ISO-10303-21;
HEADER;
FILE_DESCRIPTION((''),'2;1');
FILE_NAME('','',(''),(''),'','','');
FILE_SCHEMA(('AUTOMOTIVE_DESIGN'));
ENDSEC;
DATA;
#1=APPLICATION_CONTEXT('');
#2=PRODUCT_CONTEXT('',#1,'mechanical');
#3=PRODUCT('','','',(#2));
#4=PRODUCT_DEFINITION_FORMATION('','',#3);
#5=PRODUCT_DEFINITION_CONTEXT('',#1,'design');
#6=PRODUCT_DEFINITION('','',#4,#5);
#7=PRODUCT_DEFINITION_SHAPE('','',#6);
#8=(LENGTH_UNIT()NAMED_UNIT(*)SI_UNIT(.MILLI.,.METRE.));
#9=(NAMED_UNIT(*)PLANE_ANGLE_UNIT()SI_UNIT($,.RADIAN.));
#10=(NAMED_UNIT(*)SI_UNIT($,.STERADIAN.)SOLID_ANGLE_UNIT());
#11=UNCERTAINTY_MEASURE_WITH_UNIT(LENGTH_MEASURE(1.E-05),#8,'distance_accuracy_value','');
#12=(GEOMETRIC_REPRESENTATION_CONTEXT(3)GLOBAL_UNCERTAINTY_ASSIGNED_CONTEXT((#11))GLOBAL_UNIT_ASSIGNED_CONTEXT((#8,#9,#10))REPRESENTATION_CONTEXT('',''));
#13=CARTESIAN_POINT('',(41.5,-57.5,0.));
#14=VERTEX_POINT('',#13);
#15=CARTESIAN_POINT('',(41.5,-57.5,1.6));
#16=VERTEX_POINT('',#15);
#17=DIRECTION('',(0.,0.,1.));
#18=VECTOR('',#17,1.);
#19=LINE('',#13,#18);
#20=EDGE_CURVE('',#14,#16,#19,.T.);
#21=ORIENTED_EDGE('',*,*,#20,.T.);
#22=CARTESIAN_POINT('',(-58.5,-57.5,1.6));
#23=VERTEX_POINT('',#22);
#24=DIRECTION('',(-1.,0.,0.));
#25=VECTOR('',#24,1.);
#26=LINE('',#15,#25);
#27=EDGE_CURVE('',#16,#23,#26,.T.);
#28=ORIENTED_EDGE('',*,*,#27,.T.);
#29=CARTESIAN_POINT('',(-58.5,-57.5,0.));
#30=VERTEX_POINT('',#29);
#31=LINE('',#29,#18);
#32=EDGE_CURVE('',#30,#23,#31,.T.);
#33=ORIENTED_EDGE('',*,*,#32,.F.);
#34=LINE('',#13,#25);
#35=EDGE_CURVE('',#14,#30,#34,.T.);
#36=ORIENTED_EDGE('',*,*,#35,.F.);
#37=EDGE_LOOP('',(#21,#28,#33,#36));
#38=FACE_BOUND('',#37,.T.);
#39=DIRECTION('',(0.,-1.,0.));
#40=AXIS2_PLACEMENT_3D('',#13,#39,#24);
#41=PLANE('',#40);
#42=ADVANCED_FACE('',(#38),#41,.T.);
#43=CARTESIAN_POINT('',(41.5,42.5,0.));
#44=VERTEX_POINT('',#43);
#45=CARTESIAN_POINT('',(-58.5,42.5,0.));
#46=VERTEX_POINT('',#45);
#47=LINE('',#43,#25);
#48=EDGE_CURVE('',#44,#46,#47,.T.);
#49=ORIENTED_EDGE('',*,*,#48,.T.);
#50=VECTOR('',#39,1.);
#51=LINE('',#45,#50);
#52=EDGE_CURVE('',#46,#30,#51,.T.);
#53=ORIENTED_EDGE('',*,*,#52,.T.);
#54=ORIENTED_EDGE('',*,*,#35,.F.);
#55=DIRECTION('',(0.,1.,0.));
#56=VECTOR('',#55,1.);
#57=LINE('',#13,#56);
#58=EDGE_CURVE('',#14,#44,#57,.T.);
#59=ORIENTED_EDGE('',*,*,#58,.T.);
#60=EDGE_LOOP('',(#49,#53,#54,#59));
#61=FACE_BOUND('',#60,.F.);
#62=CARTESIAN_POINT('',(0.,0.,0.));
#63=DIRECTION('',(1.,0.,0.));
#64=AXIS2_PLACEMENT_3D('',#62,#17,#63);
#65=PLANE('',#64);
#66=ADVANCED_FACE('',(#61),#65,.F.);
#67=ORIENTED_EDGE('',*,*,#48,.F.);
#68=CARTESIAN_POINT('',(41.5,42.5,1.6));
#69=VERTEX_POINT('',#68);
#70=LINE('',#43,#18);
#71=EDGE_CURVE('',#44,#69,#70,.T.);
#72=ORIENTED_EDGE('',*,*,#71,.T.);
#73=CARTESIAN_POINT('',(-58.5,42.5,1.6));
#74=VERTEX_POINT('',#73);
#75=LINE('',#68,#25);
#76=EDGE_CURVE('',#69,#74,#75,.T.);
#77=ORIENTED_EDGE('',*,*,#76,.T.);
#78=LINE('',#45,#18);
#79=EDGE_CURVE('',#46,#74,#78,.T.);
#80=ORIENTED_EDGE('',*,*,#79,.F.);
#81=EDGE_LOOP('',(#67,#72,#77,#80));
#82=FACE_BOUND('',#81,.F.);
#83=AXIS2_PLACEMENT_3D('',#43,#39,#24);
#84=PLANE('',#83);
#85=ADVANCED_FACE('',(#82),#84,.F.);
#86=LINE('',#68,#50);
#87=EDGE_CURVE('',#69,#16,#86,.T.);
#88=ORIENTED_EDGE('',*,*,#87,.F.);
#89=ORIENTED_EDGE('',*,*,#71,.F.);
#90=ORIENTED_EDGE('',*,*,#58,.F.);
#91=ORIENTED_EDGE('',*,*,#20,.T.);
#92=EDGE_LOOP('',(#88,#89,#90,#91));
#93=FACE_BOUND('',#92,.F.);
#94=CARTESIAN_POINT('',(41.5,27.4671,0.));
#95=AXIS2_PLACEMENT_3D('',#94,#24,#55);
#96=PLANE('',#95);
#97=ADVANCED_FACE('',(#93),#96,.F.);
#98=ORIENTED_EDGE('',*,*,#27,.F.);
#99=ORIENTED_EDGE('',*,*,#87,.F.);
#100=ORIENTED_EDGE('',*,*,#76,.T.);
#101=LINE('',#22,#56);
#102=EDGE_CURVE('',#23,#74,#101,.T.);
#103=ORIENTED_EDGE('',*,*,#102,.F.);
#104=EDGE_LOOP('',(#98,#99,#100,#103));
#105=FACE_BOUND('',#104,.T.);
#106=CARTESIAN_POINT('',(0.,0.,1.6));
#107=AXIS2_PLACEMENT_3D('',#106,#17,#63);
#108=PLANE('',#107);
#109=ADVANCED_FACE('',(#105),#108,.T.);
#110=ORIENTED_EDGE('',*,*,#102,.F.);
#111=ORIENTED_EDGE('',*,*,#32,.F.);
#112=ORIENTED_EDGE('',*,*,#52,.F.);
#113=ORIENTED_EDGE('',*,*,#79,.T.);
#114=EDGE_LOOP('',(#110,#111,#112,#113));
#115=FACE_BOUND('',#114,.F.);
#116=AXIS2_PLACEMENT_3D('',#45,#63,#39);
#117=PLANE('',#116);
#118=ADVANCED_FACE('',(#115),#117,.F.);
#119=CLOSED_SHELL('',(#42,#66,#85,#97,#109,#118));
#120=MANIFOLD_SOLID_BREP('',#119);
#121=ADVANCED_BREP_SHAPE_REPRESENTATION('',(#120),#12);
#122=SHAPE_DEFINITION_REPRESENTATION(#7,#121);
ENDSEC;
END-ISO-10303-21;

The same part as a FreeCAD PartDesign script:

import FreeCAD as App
import Part
import Sketcher
Q = App.Units.Quantity

doc = App.newDocument("Part")
params = doc.addObject("Spreadsheet::Sheet", "Params")
for row, (alias, value) in enumerate([
    ("sketch1_width", "3.937 in"),
    ("pad1_length", "0.0629921 in"),
], start=1):
    params.set(f"A{row}", alias)
    params.set(f"B{row}", "=" + value)
    params.setAlias(f"B{row}", alias)

body = doc.addObject("PartDesign::Body", "Body")

# Sketch on XY plane
sketch1 = body.newObject("Sketcher::SketchObject", "Sketch")
sketch1.AttachmentSupport = (doc.getObject("XY_Plane"), [""])
sketch1.MapMode = "FlatFace"
sketch1.addGeometry([
    Part.LineSegment(App.Vector(42, 42, 0), App.Vector(-58, 42, 0)),
    Part.LineSegment(App.Vector(-58, 42, 0), App.Vector(-58, -58, 0)),
    Part.LineSegment(App.Vector(-58, -58, 0), App.Vector(42, -58, 0)),
    Part.LineSegment(App.Vector(42, -58, 0), App.Vector(42, 42, 0)),
], False)
sketch1.addConstraint([
    Sketcher.Constraint("Coincident", 0, 2, 1, 1),
    Sketcher.Constraint("Coincident", 1, 2, 2, 1),
    Sketcher.Constraint("Coincident", 2, 2, 3, 1),
    Sketcher.Constraint("Coincident", 3, 2, 0, 1),
    Sketcher.Constraint("Horizontal", 0),
    Sketcher.Constraint("Vertical", 1),
    Sketcher.Constraint("Horizontal", 2),
    Sketcher.Constraint("Vertical", 3),
    Sketcher.Constraint("Equal", 2, 1),
    Sketcher.Constraint("DistanceX", 0, 2, 0, 1, Q("3.937 in")),
    Sketcher.Constraint("DistanceX", 0, 2, -1, 1, 58.5),
    Sketcher.Constraint("DistanceY", -1, 1, 0, 2, 42.5),
])
sketch1.setExpression("Constraints[9]", "Params.sketch1_width")
pad1 = body.newObject("PartDesign::Pad", "Pad")
pad1.Profile = sketch1
pad1.setExpression("Length", "Params.pad1_length")

doc.recompute()
